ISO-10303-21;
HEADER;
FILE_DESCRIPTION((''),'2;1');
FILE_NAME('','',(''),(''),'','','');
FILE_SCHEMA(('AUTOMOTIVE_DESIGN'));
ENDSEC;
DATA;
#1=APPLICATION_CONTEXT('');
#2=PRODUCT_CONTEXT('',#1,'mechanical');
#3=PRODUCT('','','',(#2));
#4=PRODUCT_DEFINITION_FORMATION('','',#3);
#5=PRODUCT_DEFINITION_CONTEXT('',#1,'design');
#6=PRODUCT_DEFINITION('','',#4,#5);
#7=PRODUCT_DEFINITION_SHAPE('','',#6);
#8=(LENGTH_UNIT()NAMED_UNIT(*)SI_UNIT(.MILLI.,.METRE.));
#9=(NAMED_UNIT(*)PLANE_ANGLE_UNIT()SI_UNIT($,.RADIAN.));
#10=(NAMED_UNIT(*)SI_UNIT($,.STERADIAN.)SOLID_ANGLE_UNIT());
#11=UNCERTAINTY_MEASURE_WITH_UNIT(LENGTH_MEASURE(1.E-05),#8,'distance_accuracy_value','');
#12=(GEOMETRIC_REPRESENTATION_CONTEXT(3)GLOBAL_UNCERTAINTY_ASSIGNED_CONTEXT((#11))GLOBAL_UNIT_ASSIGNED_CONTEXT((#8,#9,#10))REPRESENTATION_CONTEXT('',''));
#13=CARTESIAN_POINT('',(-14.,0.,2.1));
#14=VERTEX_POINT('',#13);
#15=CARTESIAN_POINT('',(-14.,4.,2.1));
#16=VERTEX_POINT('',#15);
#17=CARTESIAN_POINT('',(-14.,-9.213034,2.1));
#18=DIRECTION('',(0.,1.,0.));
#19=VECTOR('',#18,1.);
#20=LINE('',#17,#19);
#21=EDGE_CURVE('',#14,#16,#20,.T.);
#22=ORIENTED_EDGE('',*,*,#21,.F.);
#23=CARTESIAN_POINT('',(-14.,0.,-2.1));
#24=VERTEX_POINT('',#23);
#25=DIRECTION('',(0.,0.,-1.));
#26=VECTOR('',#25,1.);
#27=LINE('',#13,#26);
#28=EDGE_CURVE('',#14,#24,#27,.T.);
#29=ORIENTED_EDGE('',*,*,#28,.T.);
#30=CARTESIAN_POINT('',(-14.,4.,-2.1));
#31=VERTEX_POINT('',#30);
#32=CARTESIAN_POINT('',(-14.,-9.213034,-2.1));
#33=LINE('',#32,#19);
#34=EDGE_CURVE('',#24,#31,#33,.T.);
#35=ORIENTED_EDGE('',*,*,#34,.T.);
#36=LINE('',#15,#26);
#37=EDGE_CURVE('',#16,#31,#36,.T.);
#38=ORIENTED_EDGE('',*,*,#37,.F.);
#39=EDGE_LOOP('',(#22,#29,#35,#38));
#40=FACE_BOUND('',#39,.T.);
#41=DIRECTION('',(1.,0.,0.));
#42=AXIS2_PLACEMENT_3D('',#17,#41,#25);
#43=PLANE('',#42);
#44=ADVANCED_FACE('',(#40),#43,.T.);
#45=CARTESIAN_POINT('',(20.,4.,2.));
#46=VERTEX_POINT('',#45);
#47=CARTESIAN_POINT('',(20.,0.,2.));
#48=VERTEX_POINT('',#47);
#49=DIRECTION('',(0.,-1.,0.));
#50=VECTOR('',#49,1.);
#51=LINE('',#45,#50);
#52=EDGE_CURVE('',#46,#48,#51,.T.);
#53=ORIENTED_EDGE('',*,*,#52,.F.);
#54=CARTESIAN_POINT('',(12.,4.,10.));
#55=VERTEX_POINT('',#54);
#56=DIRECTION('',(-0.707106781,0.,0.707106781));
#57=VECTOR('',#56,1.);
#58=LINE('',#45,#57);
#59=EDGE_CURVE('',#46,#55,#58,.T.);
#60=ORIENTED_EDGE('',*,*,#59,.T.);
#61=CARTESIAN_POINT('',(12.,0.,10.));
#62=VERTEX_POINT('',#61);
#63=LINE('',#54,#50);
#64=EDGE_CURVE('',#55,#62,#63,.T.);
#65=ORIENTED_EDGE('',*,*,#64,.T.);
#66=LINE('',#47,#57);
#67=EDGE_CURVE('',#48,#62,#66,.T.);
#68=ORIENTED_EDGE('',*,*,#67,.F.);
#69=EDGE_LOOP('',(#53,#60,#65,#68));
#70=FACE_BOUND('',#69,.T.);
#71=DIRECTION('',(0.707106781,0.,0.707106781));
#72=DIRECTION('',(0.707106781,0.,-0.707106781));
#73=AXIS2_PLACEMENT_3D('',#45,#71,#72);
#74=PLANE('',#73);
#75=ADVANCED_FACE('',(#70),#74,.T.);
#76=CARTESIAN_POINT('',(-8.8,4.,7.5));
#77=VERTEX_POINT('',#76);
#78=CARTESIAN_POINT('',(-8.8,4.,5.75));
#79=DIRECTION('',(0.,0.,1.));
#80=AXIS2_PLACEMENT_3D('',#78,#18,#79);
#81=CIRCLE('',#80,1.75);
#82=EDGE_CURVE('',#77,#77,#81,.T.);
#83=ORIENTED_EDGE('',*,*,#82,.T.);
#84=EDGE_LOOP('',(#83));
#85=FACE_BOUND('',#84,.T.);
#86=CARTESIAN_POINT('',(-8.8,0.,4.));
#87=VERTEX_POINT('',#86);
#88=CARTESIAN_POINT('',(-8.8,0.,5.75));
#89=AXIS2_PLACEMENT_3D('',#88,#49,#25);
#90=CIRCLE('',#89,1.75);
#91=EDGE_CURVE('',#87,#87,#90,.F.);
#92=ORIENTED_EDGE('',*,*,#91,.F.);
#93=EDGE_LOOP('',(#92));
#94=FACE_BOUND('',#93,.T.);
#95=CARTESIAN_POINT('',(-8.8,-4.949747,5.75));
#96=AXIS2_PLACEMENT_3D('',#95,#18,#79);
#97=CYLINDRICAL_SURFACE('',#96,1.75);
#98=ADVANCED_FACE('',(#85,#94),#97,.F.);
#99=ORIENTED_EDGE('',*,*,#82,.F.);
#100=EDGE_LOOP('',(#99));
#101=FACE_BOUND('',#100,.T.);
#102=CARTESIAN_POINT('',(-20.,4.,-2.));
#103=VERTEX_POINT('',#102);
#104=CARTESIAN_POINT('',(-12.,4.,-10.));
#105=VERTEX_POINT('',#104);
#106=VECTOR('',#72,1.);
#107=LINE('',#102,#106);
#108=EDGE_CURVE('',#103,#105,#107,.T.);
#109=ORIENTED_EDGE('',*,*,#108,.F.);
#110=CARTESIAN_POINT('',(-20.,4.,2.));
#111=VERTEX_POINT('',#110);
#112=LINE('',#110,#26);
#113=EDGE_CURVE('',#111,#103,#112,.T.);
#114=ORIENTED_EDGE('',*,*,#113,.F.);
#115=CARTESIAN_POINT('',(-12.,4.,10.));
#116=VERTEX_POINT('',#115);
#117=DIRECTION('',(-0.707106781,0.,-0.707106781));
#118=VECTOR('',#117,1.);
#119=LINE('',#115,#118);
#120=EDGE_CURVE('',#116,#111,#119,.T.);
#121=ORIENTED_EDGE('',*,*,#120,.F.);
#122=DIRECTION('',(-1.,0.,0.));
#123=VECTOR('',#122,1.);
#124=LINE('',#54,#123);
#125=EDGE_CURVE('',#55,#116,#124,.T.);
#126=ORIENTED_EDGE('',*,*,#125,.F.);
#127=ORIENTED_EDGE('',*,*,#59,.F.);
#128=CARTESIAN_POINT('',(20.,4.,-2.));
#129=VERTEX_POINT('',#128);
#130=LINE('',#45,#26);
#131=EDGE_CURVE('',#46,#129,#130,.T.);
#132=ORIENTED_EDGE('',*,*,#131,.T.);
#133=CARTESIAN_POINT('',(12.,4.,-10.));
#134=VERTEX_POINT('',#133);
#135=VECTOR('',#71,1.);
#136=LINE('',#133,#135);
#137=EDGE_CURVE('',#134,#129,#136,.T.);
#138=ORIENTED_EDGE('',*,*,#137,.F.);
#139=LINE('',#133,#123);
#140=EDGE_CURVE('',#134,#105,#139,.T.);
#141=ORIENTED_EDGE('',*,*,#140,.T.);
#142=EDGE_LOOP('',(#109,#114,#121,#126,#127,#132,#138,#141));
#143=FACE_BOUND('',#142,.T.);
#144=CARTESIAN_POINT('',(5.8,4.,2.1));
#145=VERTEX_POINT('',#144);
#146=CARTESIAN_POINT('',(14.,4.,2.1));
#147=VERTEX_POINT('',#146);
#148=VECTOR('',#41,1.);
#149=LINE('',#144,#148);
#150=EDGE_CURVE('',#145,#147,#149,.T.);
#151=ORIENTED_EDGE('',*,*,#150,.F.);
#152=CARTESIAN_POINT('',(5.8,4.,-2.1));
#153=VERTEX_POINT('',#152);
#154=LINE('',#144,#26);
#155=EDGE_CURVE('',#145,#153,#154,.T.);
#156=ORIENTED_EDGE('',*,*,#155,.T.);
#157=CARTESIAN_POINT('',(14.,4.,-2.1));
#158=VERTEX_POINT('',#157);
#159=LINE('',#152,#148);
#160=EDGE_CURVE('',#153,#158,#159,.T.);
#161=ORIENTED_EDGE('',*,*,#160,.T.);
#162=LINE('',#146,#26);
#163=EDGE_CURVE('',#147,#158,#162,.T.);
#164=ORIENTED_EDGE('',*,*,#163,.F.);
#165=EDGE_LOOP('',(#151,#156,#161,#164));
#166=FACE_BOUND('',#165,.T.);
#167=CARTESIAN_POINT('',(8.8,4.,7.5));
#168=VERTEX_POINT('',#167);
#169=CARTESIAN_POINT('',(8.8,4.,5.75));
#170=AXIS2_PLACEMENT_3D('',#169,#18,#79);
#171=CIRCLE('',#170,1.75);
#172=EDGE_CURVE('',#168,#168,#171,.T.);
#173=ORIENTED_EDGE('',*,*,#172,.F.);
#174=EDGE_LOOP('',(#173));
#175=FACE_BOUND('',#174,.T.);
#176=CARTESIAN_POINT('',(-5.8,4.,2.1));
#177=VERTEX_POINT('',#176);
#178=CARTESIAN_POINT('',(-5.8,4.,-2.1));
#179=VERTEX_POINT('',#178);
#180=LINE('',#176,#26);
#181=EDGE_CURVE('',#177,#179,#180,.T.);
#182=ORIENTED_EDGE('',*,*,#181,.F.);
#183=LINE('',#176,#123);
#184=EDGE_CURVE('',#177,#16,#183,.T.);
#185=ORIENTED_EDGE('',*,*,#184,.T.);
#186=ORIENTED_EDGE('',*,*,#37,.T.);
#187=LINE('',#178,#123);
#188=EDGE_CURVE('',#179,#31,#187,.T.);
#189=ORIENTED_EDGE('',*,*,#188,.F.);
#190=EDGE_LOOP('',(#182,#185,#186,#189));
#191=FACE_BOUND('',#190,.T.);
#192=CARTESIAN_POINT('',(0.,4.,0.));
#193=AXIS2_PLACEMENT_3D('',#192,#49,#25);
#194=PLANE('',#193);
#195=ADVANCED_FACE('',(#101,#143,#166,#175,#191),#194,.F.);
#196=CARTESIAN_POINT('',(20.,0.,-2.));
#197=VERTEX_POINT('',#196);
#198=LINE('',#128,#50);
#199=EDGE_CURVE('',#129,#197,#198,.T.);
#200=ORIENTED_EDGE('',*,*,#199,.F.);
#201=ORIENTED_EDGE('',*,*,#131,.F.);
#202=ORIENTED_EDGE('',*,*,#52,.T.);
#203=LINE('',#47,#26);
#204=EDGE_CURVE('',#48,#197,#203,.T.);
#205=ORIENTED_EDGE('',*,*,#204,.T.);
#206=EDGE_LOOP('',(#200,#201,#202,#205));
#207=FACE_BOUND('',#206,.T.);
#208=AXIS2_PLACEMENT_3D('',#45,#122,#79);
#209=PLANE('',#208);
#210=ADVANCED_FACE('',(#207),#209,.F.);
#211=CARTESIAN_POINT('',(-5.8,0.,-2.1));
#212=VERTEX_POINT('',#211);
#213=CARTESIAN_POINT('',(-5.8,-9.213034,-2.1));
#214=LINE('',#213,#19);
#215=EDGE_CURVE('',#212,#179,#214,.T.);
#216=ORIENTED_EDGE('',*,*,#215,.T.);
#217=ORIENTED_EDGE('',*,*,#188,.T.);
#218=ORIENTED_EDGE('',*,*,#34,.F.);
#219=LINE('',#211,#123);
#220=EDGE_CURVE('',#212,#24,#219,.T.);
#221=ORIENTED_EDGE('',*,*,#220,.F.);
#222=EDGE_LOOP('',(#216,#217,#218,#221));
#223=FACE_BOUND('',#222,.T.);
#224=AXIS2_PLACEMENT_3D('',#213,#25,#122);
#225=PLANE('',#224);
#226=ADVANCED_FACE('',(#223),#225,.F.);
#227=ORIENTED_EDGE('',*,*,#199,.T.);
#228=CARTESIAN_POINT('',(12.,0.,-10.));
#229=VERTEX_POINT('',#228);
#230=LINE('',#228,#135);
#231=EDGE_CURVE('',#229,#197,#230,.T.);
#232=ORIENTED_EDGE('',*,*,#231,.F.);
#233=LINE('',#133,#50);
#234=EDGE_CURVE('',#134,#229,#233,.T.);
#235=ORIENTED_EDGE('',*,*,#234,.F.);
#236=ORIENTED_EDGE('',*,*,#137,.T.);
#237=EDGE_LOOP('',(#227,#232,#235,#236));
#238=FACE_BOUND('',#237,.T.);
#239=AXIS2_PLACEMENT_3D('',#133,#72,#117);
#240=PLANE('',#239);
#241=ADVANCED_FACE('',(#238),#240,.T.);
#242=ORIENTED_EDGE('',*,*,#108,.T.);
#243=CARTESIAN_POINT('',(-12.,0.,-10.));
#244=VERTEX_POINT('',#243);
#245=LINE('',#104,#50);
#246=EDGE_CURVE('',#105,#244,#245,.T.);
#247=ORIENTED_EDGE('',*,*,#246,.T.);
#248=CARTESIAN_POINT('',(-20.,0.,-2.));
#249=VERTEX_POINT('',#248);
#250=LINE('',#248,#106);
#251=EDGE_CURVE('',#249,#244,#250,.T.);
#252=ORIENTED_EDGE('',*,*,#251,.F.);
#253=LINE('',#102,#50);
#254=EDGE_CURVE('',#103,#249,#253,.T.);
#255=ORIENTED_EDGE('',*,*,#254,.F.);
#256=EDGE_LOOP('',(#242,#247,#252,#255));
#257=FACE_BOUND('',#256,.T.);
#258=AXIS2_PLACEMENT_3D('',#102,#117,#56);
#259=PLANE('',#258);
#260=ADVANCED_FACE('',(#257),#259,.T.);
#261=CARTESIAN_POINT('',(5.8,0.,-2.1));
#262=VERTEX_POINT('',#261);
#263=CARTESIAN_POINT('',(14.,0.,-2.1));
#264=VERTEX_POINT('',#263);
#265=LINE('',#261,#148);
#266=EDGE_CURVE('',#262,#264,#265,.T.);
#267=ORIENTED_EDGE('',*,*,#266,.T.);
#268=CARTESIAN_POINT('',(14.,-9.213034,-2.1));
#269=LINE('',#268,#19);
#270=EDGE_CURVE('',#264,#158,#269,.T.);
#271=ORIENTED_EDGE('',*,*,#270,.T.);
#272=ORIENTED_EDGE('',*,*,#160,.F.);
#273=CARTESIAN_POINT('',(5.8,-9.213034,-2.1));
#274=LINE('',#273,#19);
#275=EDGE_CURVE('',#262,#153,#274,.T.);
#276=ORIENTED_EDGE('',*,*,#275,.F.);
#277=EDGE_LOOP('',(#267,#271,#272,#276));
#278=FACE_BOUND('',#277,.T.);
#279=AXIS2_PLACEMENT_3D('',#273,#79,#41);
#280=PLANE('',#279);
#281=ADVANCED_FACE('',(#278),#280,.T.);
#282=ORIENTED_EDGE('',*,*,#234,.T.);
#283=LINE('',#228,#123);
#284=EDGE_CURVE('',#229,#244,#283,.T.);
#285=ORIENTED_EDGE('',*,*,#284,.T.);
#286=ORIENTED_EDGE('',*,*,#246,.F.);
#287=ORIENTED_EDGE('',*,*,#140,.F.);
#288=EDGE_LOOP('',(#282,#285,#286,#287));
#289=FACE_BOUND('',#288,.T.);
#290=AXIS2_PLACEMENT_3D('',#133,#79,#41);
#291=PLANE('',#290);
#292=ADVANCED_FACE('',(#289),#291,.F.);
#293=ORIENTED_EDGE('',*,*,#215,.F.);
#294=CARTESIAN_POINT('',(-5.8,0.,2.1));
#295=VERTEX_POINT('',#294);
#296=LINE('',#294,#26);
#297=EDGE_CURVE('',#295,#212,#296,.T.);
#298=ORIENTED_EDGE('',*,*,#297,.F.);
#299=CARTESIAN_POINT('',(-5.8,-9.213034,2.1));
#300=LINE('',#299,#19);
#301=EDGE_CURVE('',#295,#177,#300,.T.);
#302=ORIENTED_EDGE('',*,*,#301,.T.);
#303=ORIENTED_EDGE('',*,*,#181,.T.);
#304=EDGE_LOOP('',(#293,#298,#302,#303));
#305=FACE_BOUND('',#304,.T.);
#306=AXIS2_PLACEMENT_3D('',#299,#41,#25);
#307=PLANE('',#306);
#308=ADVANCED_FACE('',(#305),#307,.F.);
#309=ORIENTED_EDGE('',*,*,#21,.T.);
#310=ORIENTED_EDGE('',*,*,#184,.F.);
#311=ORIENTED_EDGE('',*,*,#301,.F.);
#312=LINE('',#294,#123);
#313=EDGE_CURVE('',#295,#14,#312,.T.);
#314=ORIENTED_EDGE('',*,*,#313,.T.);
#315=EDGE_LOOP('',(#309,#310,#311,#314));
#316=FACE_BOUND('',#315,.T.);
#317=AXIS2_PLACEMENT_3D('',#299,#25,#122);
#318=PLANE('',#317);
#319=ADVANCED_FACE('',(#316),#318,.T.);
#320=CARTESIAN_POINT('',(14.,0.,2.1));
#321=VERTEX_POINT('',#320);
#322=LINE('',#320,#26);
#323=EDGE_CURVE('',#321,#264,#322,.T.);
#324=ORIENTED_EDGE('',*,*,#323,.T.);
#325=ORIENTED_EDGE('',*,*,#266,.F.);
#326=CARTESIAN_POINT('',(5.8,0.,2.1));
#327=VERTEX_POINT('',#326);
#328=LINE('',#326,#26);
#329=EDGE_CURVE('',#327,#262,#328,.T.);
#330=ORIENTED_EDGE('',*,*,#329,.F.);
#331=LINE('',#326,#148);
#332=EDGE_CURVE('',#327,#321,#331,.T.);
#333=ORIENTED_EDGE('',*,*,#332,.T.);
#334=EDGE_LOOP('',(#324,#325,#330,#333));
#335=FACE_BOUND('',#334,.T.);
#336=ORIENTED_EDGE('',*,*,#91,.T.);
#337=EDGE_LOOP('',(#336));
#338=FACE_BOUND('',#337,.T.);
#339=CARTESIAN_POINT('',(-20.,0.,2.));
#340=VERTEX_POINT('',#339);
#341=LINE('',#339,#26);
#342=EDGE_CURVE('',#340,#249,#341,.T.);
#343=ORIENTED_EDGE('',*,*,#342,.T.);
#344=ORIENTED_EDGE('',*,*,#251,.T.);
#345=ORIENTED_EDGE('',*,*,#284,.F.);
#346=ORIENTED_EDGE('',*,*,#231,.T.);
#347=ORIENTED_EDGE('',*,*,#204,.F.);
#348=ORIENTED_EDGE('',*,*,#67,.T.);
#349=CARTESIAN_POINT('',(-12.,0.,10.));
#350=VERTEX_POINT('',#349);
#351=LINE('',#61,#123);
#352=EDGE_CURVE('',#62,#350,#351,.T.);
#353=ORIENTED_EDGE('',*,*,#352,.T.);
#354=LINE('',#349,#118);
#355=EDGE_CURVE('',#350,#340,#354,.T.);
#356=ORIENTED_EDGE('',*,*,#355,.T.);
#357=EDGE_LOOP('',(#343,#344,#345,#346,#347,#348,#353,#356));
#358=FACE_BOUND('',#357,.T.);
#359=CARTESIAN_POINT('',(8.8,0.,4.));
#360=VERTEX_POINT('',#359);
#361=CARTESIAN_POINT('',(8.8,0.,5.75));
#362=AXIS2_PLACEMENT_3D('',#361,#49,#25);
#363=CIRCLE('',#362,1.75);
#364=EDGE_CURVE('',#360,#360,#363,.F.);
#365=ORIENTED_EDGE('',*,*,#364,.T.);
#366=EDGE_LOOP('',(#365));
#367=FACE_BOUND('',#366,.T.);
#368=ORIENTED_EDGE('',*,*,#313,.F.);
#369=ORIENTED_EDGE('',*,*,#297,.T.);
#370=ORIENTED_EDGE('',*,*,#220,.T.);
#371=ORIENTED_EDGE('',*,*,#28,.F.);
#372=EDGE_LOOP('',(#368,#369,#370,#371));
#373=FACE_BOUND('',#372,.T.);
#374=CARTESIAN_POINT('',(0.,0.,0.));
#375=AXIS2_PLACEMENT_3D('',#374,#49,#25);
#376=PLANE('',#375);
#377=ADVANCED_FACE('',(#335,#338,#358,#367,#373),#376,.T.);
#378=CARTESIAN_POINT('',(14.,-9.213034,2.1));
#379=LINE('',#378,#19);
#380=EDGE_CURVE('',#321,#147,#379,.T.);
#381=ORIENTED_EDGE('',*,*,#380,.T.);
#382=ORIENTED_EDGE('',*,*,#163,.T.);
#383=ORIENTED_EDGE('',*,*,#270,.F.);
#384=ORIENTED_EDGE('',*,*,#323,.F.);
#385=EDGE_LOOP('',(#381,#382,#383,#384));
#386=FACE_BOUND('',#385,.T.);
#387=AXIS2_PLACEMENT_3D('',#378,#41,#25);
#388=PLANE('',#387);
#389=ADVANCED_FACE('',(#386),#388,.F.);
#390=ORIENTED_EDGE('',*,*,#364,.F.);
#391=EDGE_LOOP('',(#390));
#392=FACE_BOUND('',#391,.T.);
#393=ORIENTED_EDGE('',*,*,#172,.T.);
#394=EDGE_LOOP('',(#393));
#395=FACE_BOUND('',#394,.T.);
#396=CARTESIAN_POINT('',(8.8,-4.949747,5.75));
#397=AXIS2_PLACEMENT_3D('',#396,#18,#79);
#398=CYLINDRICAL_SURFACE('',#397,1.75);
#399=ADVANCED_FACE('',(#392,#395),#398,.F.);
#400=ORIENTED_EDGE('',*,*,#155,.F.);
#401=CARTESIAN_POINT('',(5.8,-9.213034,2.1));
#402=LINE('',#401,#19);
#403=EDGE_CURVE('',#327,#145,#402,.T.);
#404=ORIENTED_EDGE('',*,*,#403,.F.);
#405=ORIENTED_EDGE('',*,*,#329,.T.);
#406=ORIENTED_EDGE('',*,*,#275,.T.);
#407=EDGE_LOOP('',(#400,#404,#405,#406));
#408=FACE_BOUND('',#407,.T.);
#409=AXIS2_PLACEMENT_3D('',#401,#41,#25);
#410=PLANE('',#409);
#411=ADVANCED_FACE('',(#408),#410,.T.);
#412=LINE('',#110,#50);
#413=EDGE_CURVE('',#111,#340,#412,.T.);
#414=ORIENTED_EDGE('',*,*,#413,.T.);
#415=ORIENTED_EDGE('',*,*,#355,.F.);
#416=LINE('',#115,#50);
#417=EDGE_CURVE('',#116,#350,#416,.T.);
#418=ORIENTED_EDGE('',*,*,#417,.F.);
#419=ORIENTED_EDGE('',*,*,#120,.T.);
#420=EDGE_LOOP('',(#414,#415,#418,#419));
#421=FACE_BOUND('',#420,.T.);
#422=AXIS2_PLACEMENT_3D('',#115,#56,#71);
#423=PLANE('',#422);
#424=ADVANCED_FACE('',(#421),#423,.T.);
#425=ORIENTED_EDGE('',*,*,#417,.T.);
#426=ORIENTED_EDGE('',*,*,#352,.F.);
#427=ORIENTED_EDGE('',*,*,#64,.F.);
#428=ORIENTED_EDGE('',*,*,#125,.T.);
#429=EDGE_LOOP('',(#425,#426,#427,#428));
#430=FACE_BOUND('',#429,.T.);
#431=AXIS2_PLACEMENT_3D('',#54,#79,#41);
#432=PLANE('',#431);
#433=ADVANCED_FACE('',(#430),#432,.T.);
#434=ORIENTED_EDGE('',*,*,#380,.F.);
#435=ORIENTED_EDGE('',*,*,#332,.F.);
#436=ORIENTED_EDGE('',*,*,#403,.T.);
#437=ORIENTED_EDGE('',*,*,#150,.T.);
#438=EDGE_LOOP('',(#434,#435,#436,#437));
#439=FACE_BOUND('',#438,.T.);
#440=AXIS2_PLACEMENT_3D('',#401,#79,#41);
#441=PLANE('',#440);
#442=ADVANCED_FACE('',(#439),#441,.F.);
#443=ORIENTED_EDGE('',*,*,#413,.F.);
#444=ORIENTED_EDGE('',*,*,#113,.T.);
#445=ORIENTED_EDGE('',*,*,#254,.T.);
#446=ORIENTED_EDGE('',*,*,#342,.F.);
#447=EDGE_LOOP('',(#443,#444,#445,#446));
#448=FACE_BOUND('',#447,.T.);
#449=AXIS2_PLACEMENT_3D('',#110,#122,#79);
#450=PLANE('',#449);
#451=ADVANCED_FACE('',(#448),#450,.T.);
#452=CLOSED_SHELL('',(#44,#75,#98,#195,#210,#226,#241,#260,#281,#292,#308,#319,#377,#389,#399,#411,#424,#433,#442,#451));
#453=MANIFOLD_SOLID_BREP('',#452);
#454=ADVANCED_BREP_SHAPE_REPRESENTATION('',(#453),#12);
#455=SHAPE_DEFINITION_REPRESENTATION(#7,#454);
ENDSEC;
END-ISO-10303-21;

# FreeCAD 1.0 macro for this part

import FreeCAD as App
import Part
import Sketcher

V = App.Vector
Q = App.Units.Quantity

doc = App.newDocument("Part")
body = doc.addObject("PartDesign::Body", "Body")

# Sketch on XZ plane
sketch1 = body.newObject("Sketcher::SketchObject", "Sketch")
sketch1.AttachmentSupport = (doc.getObject("XZ_Plane"), [""])
sketch1.MapMode = "FlatFace"
sketch1.addGeometry([
    Part.LineSegment(V(-12, 10, 0), V(12, 10, 0)),  # 0
    Part.LineSegment(V(12, 10, 0), V(20, 2, 0)),  # 1
    Part.LineSegment(V(20, 2, 0), V(20, -2, 0)),  # 2
    Part.LineSegment(V(20, -2, 0), V(12, -10, 0)),  # 3
    Part.LineSegment(V(12, -10, 0), V(-12, -10, 0)),  # 4
    Part.LineSegment(V(-12, -10, 0), V(-20, -2, 0)),  # 5
    Part.LineSegment(V(-20, -2, 0), V(-20, 2, 0)),  # 6
    Part.LineSegment(V(-20, 2, 0), V(-12, 10, 0)),  # 7
], False)
sketch1.addConstraint([
    Sketcher.Constraint("Coincident", 0, 2, 1, 1),
    Sketcher.Constraint("Coincident", 1, 2, 2, 1),
    Sketcher.Constraint("Coincident", 2, 2, 3, 1),
    Sketcher.Constraint("Coincident", 3, 2, 4, 1),
    Sketcher.Constraint("Coincident", 4, 2, 5, 1),
    Sketcher.Constraint("Coincident", 5, 2, 6, 1),
    Sketcher.Constraint("Coincident", 6, 2, 7, 1),
    Sketcher.Constraint("Coincident", 7, 2, 0, 1),
    Sketcher.Constraint("Horizontal", 0),
    Sketcher.Constraint("Vertical", 2),
    Sketcher.Constraint("Horizontal", 4),
    Sketcher.Constraint("Vertical", 6),
    Sketcher.Constraint("Symmetric", 0, 2, 4, 2, -1, 1),
    Sketcher.Constraint("Symmetric", 1, 2, 5, 2, -1, 1),
    Sketcher.Constraint("Perpendicular", 1, 3),
    Sketcher.Constraint("Perpendicular", 5, 7),
    Sketcher.Constraint("Horizontal", 2, 2, 5, 2),
    Sketcher.Constraint("Horizontal", 1, 2, 6, 2),
    Sketcher.Constraint("Vertical", 0, 2, 3, 2),
    Sketcher.Constraint("DistanceX", 0, 1, 0, 2, Q("24 mm")),
    Sketcher.Constraint("DistanceY", 2, 2, 2, 1, Q("4 mm")),
    Sketcher.Constraint("DistanceY", -1, 1, 0, 2, Q("10 mm")),
])
pad1 = body.newObject("PartDesign::Pad", "Pad")
pad1.Profile = sketch1
pad1.Length = 4
pad1.Reversed = True

# Sketch on XZ plane
sketch2 = body.newObject("Sketcher::SketchObject", "Sketch001")
sketch2.AttachmentSupport = (doc.getObject("XZ_Plane"), [""])
sketch2.MapMode = "FlatFace"
sketch2.AttachmentOffset = App.Placement(V(0, 0, -4), App.Rotation())
sketch2.addGeometry([
    Part.LineSegment(V(5.8, -2.1, 0), V(5.8, 2.1, 0)),  # 0
    Part.LineSegment(V(5.8, 2.1, 0), V(14, 2.1, 0)),  # 1
    Part.LineSegment(V(14, 2.1, 0), V(14, -2.1, 0)),  # 2
    Part.LineSegment(V(14, -2.1, 0), V(5.8, -2.1, 0)),  # 3
    Part.LineSegment(V(-14, -2.1, 0), V(-14, 2.1, 0)),  # 4
    Part.LineSegment(V(-14, 2.1, 0), V(-5.8, 2.1, 0)),  # 5
    Part.LineSegment(V(-5.8, 2.1, 0), V(-5.8, -2.1, 0)),  # 6
    Part.LineSegment(V(-5.8, -2.1, 0), V(-14, -2.1, 0)),  # 7
], False)
sketch2.addConstraint([
    Sketcher.Constraint("Coincident", 0, 2, 1, 1),
    Sketcher.Constraint("Coincident", 1, 2, 2, 1),
    Sketcher.Constraint("Coincident", 2, 2, 3, 1),
    Sketcher.Constraint("Coincident", 3, 2, 0, 1),
    Sketcher.Constraint("Coincident", 4, 2, 5, 1),
    Sketcher.Constraint("Coincident", 5, 2, 6, 1),
    Sketcher.Constraint("Coincident", 6, 2, 7, 1),
    Sketcher.Constraint("Coincident", 7, 2, 4, 1),
    Sketcher.Constraint("Vertical", 0),
    Sketcher.Constraint("Horizontal", 1),
    Sketcher.Constraint("Vertical", 2),
    Sketcher.Constraint("Horizontal", 3),
    Sketcher.Constraint("Vertical", 4),
    Sketcher.Constraint("Horizontal", 5),
    Sketcher.Constraint("Vertical", 6),
    Sketcher.Constraint("Horizontal", 7),
    Sketcher.Constraint("Symmetric", 2, 2, 4, 2, -1, 1),
    Sketcher.Constraint("Symmetric", 0, 2, 6, 2, -1, 1),
    Sketcher.Constraint("Horizontal", 1, 2, 4, 2),
    Sketcher.Constraint("DistanceX", 1, 1, 1, 2, Q("8.2 mm")),
    Sketcher.Constraint("DistanceY", 0, 1, 0, 2, Q("4.2 mm")),
    Sketcher.Constraint("DistanceX", -1, 1, 1, 2, Q("14 mm")),
])
pocket1 = body.newObject("PartDesign::Pocket", "Pocket")
pocket1.Profile = sketch2
pocket1.Length = 4
pocket1.Reversed = True

# Sketch on XZ plane
sketch3 = body.newObject("Sketcher::SketchObject", "Sketch002")
sketch3.AttachmentSupport = (doc.getObject("XZ_Plane"), [""])
sketch3.MapMode = "FlatFace"
sketch3.AttachmentOffset = App.Placement(V(0, 0, -4), App.Rotation())
sketch3.addGeometry([
    Part.Circle(V(-8.8, 5.75, 0), V(0, 0, 1), 1.75),
    Part.Circle(V(8.8, 5.75, 0), V(0, 0, 1), 1.75),
], False)
sketch3.addConstraint([
    Sketcher.Constraint("Equal", 0, 1),
    Sketcher.Constraint("Symmetric", 0, 3, 1, 3, -2),
    Sketcher.Constraint("Diameter", 0, Q("3.5 mm")),
    Sketcher.Constraint("DistanceX", 0, 3, -1, 1, Q("8.8 mm")),
    Sketcher.Constraint("DistanceY", -1, 1, 0, 3, Q("5.75 mm")),
])
pocket2 = body.newObject("PartDesign::Pocket", "Pocket001")
pocket2.Profile = sketch3
pocket2.Length = 4
pocket2.Reversed = True

doc.recompute()
